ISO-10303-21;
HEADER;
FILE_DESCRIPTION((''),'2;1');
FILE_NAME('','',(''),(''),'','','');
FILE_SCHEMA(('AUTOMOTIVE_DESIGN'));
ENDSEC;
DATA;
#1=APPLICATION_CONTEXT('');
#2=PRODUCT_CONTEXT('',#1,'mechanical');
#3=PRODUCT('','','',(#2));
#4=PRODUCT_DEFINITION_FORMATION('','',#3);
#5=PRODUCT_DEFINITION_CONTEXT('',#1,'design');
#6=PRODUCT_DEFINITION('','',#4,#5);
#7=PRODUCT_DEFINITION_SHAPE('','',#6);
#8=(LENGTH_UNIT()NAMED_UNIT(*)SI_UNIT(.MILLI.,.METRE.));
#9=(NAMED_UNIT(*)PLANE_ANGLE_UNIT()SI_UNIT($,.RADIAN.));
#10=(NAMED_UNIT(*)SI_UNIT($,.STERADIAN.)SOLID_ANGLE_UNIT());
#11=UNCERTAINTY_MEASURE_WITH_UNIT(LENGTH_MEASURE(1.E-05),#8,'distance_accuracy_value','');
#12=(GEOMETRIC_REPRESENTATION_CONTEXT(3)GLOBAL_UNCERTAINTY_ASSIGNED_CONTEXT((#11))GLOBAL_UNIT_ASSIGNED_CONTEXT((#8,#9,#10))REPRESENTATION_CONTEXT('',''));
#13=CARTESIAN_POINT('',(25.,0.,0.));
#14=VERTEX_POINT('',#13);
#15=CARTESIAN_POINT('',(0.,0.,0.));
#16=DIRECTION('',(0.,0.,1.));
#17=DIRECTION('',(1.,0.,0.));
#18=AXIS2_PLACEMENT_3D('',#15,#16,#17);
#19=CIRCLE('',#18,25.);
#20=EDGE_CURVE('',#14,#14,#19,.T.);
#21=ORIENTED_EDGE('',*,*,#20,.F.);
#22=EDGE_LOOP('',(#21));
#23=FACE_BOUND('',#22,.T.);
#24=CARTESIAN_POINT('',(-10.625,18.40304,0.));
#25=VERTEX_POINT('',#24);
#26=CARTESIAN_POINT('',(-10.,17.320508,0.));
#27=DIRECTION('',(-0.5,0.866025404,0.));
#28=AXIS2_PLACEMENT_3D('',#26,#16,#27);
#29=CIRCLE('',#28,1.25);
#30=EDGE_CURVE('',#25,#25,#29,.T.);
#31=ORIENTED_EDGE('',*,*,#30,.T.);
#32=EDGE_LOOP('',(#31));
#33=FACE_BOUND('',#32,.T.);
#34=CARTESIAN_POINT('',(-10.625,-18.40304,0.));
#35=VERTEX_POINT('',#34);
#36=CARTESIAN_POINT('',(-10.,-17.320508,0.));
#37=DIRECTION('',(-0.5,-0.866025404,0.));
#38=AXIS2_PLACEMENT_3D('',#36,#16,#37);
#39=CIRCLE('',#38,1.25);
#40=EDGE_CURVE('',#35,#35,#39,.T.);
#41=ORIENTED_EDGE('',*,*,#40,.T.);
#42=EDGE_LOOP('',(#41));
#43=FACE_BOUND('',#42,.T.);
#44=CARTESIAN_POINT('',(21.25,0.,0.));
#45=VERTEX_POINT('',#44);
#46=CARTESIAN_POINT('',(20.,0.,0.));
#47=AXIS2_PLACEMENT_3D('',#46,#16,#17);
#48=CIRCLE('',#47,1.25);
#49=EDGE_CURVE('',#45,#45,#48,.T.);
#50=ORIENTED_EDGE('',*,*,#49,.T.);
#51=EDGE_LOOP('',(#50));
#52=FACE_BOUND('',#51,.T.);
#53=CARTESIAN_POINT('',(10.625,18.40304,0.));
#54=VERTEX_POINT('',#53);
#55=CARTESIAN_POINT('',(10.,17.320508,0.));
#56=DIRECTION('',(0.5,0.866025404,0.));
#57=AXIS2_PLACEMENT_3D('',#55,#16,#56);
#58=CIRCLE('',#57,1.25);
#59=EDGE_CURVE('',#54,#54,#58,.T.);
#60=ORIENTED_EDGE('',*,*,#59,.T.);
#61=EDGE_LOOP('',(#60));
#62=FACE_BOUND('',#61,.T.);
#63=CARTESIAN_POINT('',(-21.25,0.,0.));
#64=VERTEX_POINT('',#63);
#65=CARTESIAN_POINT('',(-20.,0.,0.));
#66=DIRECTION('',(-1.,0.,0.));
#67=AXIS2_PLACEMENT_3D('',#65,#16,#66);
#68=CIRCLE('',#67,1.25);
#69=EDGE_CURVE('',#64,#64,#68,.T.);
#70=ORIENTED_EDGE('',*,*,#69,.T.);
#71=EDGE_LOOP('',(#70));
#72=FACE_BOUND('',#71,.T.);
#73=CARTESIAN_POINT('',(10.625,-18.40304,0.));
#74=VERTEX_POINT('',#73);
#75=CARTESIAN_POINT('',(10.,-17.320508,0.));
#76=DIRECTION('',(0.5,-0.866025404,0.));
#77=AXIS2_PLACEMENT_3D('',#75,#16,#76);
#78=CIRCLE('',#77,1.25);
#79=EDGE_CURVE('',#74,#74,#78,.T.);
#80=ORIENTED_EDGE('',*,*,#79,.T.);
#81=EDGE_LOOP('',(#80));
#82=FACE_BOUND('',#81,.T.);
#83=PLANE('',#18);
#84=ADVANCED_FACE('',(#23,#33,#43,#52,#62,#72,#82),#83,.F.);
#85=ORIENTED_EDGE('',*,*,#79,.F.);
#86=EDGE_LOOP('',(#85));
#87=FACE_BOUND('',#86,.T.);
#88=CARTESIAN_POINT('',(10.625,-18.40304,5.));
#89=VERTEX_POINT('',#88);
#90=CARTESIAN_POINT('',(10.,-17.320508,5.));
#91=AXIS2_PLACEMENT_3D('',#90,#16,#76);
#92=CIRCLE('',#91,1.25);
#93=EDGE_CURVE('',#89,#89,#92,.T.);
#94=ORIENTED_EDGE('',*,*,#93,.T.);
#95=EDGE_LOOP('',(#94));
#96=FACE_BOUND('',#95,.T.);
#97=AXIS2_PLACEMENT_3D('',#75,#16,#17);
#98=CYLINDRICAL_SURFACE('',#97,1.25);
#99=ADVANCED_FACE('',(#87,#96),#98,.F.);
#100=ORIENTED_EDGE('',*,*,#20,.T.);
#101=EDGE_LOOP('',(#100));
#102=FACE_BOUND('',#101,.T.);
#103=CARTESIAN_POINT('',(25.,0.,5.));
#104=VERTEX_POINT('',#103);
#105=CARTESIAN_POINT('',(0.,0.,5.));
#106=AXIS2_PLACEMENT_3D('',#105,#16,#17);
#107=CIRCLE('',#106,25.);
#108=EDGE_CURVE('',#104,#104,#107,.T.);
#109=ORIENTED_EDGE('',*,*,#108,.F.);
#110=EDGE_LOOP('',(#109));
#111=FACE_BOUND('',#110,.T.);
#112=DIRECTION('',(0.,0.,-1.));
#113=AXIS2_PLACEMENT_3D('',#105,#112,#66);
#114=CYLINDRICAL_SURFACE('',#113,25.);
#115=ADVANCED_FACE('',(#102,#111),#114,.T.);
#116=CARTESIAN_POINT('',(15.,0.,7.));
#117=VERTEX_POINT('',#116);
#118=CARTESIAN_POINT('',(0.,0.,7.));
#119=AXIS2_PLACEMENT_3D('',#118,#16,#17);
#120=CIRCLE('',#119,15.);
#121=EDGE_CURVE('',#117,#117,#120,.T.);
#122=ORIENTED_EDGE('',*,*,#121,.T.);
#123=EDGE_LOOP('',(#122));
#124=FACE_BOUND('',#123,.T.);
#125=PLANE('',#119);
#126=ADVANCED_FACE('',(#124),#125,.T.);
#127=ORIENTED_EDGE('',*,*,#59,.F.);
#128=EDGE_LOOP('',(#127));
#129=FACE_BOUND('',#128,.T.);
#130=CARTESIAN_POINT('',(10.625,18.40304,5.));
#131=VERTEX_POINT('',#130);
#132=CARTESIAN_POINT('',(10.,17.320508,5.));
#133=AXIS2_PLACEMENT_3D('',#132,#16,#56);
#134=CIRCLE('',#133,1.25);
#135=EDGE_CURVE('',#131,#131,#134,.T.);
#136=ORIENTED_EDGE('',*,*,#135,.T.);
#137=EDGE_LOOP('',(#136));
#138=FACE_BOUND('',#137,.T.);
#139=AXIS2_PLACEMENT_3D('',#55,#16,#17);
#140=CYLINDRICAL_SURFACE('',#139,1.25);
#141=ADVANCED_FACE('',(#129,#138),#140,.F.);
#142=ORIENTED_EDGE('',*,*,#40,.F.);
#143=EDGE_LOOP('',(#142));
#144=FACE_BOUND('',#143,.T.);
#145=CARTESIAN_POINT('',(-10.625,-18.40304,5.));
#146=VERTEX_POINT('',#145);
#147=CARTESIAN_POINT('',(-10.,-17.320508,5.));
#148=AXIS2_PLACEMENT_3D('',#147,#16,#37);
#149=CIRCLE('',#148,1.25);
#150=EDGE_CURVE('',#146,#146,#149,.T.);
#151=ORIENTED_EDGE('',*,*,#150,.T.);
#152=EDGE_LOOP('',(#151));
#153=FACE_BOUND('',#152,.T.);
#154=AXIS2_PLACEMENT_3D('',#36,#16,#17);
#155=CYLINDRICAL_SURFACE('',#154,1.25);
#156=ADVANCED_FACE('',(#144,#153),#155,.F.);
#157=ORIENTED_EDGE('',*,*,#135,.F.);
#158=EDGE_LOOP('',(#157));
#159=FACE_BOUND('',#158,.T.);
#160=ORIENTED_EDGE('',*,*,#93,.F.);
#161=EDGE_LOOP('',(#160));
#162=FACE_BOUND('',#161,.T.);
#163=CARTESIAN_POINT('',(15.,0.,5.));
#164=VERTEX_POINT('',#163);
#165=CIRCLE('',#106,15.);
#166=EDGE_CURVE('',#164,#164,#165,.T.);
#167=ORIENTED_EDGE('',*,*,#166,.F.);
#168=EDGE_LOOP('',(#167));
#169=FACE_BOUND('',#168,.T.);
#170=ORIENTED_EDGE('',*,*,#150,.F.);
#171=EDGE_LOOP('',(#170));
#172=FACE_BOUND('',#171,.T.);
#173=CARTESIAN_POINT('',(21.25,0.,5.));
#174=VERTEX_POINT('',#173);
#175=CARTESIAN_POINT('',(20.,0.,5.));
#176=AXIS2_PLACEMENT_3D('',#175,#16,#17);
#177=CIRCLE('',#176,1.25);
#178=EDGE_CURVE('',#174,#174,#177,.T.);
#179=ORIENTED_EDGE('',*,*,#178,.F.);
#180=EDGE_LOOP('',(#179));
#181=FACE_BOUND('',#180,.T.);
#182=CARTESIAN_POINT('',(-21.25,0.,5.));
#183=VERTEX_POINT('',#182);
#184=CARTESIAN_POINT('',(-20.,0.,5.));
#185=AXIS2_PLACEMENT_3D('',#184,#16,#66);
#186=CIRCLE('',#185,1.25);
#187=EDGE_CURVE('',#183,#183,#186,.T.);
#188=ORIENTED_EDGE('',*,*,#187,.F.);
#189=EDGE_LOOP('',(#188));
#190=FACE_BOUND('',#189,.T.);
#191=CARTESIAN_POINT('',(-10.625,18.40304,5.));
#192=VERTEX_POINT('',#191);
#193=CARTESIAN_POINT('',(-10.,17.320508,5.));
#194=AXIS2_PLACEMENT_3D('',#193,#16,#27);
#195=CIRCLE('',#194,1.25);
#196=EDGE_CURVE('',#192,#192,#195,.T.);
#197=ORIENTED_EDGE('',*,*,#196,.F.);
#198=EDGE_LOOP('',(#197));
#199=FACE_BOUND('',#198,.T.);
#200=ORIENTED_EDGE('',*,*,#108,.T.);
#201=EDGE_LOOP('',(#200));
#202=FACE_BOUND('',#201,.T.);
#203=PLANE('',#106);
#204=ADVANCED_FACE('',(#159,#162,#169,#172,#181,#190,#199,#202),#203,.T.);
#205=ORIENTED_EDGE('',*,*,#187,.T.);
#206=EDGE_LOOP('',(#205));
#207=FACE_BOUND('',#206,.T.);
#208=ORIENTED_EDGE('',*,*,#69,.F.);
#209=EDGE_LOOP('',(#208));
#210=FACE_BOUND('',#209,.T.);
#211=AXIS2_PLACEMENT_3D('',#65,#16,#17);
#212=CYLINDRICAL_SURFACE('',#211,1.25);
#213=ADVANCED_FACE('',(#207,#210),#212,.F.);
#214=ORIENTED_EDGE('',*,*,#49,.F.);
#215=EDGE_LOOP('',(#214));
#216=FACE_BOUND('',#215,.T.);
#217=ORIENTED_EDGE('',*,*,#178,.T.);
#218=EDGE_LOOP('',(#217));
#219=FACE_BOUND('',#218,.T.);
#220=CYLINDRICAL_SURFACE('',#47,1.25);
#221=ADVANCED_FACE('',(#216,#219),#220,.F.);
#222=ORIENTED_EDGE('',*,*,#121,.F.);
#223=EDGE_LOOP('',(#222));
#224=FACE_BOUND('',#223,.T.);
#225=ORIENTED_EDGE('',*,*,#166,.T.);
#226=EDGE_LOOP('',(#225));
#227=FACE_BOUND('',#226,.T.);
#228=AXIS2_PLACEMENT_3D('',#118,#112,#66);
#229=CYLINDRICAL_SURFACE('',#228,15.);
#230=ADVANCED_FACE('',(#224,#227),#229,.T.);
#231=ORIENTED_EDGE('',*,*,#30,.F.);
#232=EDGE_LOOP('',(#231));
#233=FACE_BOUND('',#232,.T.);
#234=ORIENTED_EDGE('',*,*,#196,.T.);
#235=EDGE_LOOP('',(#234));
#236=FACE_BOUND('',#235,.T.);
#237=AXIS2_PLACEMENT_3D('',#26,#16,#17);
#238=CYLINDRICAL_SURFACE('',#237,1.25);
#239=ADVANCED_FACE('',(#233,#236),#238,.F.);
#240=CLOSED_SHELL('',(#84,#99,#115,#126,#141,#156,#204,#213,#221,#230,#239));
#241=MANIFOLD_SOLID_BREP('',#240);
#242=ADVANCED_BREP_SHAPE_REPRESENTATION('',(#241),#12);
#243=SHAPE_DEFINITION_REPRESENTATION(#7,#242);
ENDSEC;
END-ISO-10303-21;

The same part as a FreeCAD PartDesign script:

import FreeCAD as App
import Part
import Sketcher

V = App.Vector

doc = App.newDocument("Part")
body = doc.addObject("PartDesign::Body", "Body")

# Sketch on XY plane
sketch1 = body.newObject("Sketcher::SketchObject", "Sketch")
sketch1.AttachmentSupport = (doc.getObject("XY_Plane"), [""])
sketch1.MapMode = "FlatFace"
sketch1.addGeometry(Part.Circle(V(0, 0, 0), V(0, 0, 1), 25), False)
sketch1.addConstraint([
    Sketcher.Constraint("Coincident", 0, 3, -1, 1),
    Sketcher.Constraint("Diameter", 0, 50.0),
])
pad1 = body.newObject("PartDesign::Pad", "Pad")
pad1.Profile = sketch1
pad1.Length = 5

# Sketch on XY plane
sketch2 = body.newObject("Sketcher::SketchObject", "Sketch001")
sketch2.AttachmentSupport = (doc.getObject("XY_Plane"), [""])
sketch2.MapMode = "FlatFace"
sketch2.AttachmentOffset = App.Placement(V(0, 0, 5), App.Rotation())
sketch2.addGeometry(Part.Circle(V(0, 0, 0), V(0, 0, 1), 15), False)
sketch2.addConstraint([
    Sketcher.Constraint("Coincident", 0, 3, -1, 1),
    Sketcher.Constraint("Diameter", 0, 30.0),
])
pad2 = body.newObject("PartDesign::Pad", "Pad001")
pad2.Profile = sketch2
pad2.Length = 2

# Sketch on XY plane
sketch3 = body.newObject("Sketcher::SketchObject", "Sketch002")
sketch3.AttachmentSupport = (doc.getObject("XY_Plane"), [""])
sketch3.MapMode = "FlatFace"
sketch3.AttachmentOffset = App.Placement(V(0, 0, 5), App.Rotation())
sketch3.addGeometry(Part.Circle(V(20, 0, 0), V(0, 0, 1), 1.25), False)
sketch3.addConstraint([
    Sketcher.Constraint("PointOnObject", 0, 3, -1),
    Sketcher.Constraint("Diameter", 0, 2.5),
    Sketcher.Constraint("DistanceX", -1, 1, 0, 3, 20.0),
])
pocket1 = body.newObject("PartDesign::Pocket", "Pocket")
pocket1.Profile = sketch3
pocket1.Length = 5
doc.recompute()

polarpattern = body.newObject("PartDesign::PolarPattern", "PolarPattern")
polarpattern.Originals = [pocket1]
polarpattern.Axis = (doc.getObject("Z_Axis"), [""])
polarpattern.Angle = 360
polarpattern.Occurrences = 6
body.Tip = polarpattern

doc.recompute()
